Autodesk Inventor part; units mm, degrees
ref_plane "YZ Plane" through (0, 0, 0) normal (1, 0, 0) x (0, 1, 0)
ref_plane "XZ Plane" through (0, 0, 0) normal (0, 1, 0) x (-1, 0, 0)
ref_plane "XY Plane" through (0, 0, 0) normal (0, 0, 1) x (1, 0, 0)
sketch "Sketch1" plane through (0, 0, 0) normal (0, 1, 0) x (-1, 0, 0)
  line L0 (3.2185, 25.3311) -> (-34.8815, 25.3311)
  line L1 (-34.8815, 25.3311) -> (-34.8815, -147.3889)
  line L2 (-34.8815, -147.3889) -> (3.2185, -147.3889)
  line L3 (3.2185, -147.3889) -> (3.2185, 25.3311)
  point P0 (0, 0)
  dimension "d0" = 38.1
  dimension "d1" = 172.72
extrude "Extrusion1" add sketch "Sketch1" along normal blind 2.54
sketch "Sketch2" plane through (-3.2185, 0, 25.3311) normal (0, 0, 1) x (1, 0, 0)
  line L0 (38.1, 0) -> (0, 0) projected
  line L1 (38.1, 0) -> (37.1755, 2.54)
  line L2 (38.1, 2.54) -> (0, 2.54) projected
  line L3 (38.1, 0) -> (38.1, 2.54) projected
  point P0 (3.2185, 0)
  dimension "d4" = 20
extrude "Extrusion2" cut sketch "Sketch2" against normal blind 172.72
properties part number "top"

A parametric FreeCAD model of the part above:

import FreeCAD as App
import Part
import Sketcher
Q = App.Units.Quantity


def add_polygon(sketch, points):
    """Adds a closed chain of lines whose ends are joined by coincident constraints."""
    first, n = sketch.GeometryCount, len(points)
    for a, b in zip(points, points[1:] + points[:1]):
        sketch.addGeometry(Part.LineSegment(App.Vector(*a, 0), App.Vector(*b, 0)), False)
    for i in range(n):
        sketch.addConstraint(Sketcher.Constraint("Coincident", first + i, 2, first + (i + 1) % n, 1))

doc = App.newDocument("Part")
body = doc.addObject("PartDesign::Body", "Body")

sketch1 = doc.addObject("Sketcher::SketchObject", "Sketch")
body.addObject(sketch1)
sketch1.AttachmentSupport = (doc.XZ_Plane, [""])
sketch1.MapMode = "FlatFace"
add_polygon(sketch1, [(-3.2185, -147.3889), (-3.2185, 25.3311), (34.8815, 25.3311), (34.8815, -147.3889)])
sketch1.addConstraint([
    Sketcher.Constraint("Vertical", 0),
    Sketcher.Constraint("Horizontal", 1),
    Sketcher.Constraint("Vertical", 2),
    Sketcher.Constraint("Horizontal", 3),
    Sketcher.Constraint("DistanceX", 1, 1, 1, 2, Q("1.5 in")),
    Sketcher.Constraint("DistanceY", 0, 1, 0, 2, Q("6.8 in")),
    Sketcher.Constraint("DistanceX", 0, 2, -1, 1, 3.2185),
    Sketcher.Constraint("DistanceY", -1, 1, 0, 2, 25.331),
])
pad1 = doc.addObject("PartDesign::Pad", "Pad")
body.addObject(pad1)
pad1.Profile = sketch1
pad1.Length = Q("0.1 in")
pad1.Reversed = True

sketch2 = doc.addObject("Sketcher::SketchObject", "Sketch001")
body.addObject(sketch2)
sketch2.AttachmentSupport = (doc.XY_Plane, [""])
sketch2.MapMode = "FlatFace"
sketch2.AttachmentOffset = App.Placement(App.Vector(0, 0, 25.3311), App.Rotation())
add_polygon(sketch2, [(33.957, 2.54), (34.8815, 0), (34.8815, 2.54)])
sketch2.addConstraint([
    Sketcher.Constraint("Vertical", 1),
    Sketcher.Constraint("Horizontal", 2),
    Sketcher.Constraint("PointOnObject", 0, 2, -1),
    Sketcher.Constraint("DistanceY", 1, 1, 1, 2, Q("0.1 in")),
    Sketcher.Constraint("Angle", 0, Q("-69.9997 deg")),
    Sketcher.Constraint("DistanceX", -1, 1, 2, 2, Q("1.3369 in")),
])
pocket1 = doc.addObject("PartDesign::Pocket", "Pocket")
body.addObject(pocket1)
pocket1.Profile = sketch2
pocket1.Length = Q("6.8 in")

doc.recompute()
